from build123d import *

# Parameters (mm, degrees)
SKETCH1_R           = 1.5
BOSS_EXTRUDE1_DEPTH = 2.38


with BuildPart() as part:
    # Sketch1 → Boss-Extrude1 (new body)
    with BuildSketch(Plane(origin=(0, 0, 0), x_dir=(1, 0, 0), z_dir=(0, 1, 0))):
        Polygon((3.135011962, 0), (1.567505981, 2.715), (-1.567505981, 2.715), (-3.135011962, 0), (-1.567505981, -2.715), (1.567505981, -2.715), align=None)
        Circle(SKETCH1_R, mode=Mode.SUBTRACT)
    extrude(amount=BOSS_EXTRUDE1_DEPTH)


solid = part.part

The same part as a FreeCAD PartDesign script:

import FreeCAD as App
import Part
import Sketcher
Q = App.Units.Quantity

doc = App.newDocument("Part")
body = doc.addObject("PartDesign::Body", "Body")

sketch1 = body.newObject("Sketcher::SketchObject", "Sketch")
sketch1.AttachmentSupport = (doc.getObject("XZ_Plane"), [""])
sketch1.MapMode = "FlatFace"
sketch1.addGeometry([
    Part.LineSegment(App.Vector(3.1, 0, 0), App.Vector(1.6, -2.7, 0)),
    Part.LineSegment(App.Vector(1.6, -2.7, 0), App.Vector(-1.6, -2.7, 0)),
    Part.LineSegment(App.Vector(-1.6, -2.7, 0), App.Vector(-3.1, 0, 0)),
    Part.LineSegment(App.Vector(-3.1, 0, 0), App.Vector(-1.6, 2.7, 0)),
    Part.LineSegment(App.Vector(-1.6, 2.7, 0), App.Vector(1.6, 2.7, 0)),
    Part.LineSegment(App.Vector(1.6, 2.7, 0), App.Vector(3.1, 0, 0)),
    Part.Circle(App.Vector(0, 0, 0), App.Vector(0, 0, 1), 1.5),
], False)
sketch1.addConstraint([
    Sketcher.Constraint("Coincident", 0, 2, 1, 1),
    Sketcher.Constraint("Coincident", 1, 2, 2, 1),
    Sketcher.Constraint("Coincident", 2, 2, 3, 1),
    Sketcher.Constraint("Coincident", 3, 2, 4, 1),
    Sketcher.Constraint("Coincident", 4, 2, 5, 1),
    Sketcher.Constraint("Coincident", 5, 2, 0, 1),
    Sketcher.Constraint("Horizontal", 1),
    Sketcher.Constraint("Horizontal", 4),
    Sketcher.Constraint("Coincident", 6, 3, -1, 1),
    Sketcher.Constraint("Symmetric", 0, 2, 3, 2, -1, 1),
    Sketcher.Constraint("Symmetric", 2, 2, 5, 2, -1, 1),
    Sketcher.Constraint("PointOnObject", 2, 2, -1),
    Sketcher.Constraint("Parallel", 2, 5),
    Sketcher.Constraint("Vertical", 1, 2, 3, 2),
    Sketcher.Constraint("Diameter", 6, 3.0),
    Sketcher.Constraint("Angle", 0, Q("-120 deg")),
    Sketcher.Constraint("DistanceY", 1, 2, 3, 2, 5.43),
    Sketcher.Constraint("DistanceX", 1, 2, 1, 1, 3.135012),
])
pad1 = body.newObject("PartDesign::Pad", "Pad")
pad1.Profile = sketch1
pad1.Length = 2.38
pad1.Reversed = True

doc.recompute()
